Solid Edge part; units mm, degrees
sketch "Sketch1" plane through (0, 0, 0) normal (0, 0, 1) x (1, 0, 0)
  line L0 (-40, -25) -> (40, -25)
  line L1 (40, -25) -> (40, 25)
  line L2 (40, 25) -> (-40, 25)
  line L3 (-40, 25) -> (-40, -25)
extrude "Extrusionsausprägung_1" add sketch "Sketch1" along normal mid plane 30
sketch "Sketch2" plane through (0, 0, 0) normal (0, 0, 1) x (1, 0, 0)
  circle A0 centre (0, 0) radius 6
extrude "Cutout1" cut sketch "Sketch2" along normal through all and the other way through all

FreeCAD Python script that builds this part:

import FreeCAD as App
import Part
import Sketcher

V = App.Vector
Q = App.Units.Quantity

doc = App.newDocument("Part")
body = doc.addObject("PartDesign::Body", "Body")

# Sketch on XY plane
sketch1 = body.newObject("Sketcher::SketchObject", "Sketch")
sketch1.AttachmentSupport = (doc.getObject("XY_Plane"), [""])
sketch1.MapMode = "FlatFace"
sketch1.addGeometry(Part.LineSegment(V(-40, 25, 0), V(-40, -25, 0)), False)
sketch1.addGeometry(Part.LineSegment(V(-40, -25, 0), V(40, -25, 0)), False)
sketch1.addGeometry(Part.LineSegment(V(40, -25, 0), V(40, 25, 0)), False)
sketch1.addGeometry(Part.LineSegment(V(40, 25, 0), V(-40, 25, 0)), False)
sketch1.addConstraint(Sketcher.Constraint("Coincident", 0, 2, 1, 1))
sketch1.addConstraint(Sketcher.Constraint("Coincident", 1, 2, 2, 1))
sketch1.addConstraint(Sketcher.Constraint("Coincident", 2, 2, 3, 1))
sketch1.addConstraint(Sketcher.Constraint("Coincident", 3, 2, 0, 1))
sketch1.addConstraint(Sketcher.Constraint("Vertical", 0))
sketch1.addConstraint(Sketcher.Constraint("Horizontal", 1))
sketch1.addConstraint(Sketcher.Constraint("Vertical", 2))
sketch1.addConstraint(Sketcher.Constraint("Horizontal", 3))
sketch1.addConstraint(Sketcher.Constraint("Symmetric", 0, 2, 2, 2, -1, 1))
sketch1.addConstraint(Sketcher.Constraint("DistanceX", 1, 1, 1, 2, Q("80 mm")))
sketch1.addConstraint(Sketcher.Constraint("DistanceY", 0, 2, 0, 1, Q("50 mm")))
pad1 = body.newObject("PartDesign::Pad", "Pad")
pad1.Profile = sketch1
pad1.Length = 30
pad1.Midplane = True

# Sketch on XY plane
sketch2 = body.newObject("Sketcher::SketchObject", "Sketch001")
sketch2.AttachmentSupport = (doc.getObject("XY_Plane"), [""])
sketch2.MapMode = "FlatFace"
sketch2.addGeometry(Part.Circle(V(0, 0, 0), V(0, 0, 1), 6), False)
sketch2.addConstraint(Sketcher.Constraint("Coincident", 0, 3, -1, 1))
sketch2.addConstraint(Sketcher.Constraint("Diameter", 0, Q("12 mm")))
pocket1 = body.newObject("PartDesign::Pocket", "Pocket")
pocket1.Profile = sketch2
pocket1.Type = "ThroughAll"
pocket1.Midplane = True

doc.recompute()
